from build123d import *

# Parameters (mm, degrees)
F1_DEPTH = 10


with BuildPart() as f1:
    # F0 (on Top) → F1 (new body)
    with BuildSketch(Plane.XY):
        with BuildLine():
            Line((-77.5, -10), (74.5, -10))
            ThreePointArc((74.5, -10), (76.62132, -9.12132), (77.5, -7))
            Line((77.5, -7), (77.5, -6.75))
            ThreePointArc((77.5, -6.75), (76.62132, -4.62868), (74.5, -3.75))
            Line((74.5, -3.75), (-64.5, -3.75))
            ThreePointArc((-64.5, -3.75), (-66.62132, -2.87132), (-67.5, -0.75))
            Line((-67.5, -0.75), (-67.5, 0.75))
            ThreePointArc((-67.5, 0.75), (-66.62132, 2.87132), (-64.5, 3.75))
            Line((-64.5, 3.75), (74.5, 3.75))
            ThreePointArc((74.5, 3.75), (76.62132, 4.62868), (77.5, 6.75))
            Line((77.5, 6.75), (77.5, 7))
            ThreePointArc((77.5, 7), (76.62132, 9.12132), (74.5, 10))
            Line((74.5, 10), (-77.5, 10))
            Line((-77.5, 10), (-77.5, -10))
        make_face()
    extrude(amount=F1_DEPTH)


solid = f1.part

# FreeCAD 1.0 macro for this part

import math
import FreeCAD as App
import Part
import Sketcher
from FreeCAD import Vector

doc = App.newDocument("Part")
body = doc.addObject("PartDesign::Body", "Body")

sketch1 = body.newObject("Sketcher::SketchObject", "Sketch")
sketch1.AttachmentSupport = (doc.getObject("XY_Plane"), [""])
sketch1.MapMode = "FlatFace"
sketch1.addGeometry([
    Part.LineSegment(Vector(-77.5, -10, 0), Vector(74.5, -10, 0)),
    Part.ArcOfCircle(Part.Circle(Vector(74.5, -7, 0), Vector(0, 0, 1), 3), math.radians(-90), math.radians(0)),
    Part.LineSegment(Vector(77.5, -7, 0), Vector(77.5, -6.75, 0)),
    Part.ArcOfCircle(Part.Circle(Vector(74.5, -6.75, 0), Vector(0, 0, 1), 3), math.radians(0), math.radians(90)),
    Part.LineSegment(Vector(74.5, -3.75, 0), Vector(-64.5, -3.75, 0)),
    Part.ArcOfCircle(Part.Circle(Vector(-64.5, -0.75, 0), Vector(0, 0, 1), 3), math.radians(-180), math.radians(-90)),
    Part.LineSegment(Vector(-67.5, -0.75, 0), Vector(-67.5, 0.75, 0)),
    Part.ArcOfCircle(Part.Circle(Vector(-64.5, 0.75, 0), Vector(0, 0, 1), 3), math.radians(90), math.radians(180)),
    Part.LineSegment(Vector(-64.5, 3.75, 0), Vector(74.5, 3.75, 0)),
    Part.ArcOfCircle(Part.Circle(Vector(74.5, 6.75, 0), Vector(0, 0, 1), 3), math.radians(-90), math.radians(0)),
    Part.LineSegment(Vector(77.5, 6.75, 0), Vector(77.5, 7, 0)),
    Part.ArcOfCircle(Part.Circle(Vector(74.5, 7, 0), Vector(0, 0, 1), 3), math.radians(0), math.radians(90)),
    Part.LineSegment(Vector(74.5, 10, 0), Vector(-77.5, 10, 0)),
    Part.LineSegment(Vector(-77.5, 10, 0), Vector(-77.5, -10, 0)),
], False)
sketch1.addConstraint([
    Sketcher.Constraint("Tangent", 0, 2, 1, 1),
    Sketcher.Constraint("Tangent", 1, 2, 2, 1),
    Sketcher.Constraint("Tangent", 2, 2, 3, 1),
    Sketcher.Constraint("Tangent", 3, 2, 4, 1),
    Sketcher.Constraint("Tangent", 4, 2, 5, 2),
    Sketcher.Constraint("Tangent", 5, 1, 6, 1),
    Sketcher.Constraint("Tangent", 6, 2, 7, 2),
    Sketcher.Constraint("Tangent", 7, 1, 8, 1),
    Sketcher.Constraint("Tangent", 8, 2, 9, 1),
    Sketcher.Constraint("Tangent", 9, 2, 10, 1),
    Sketcher.Constraint("Tangent", 10, 2, 11, 1),
    Sketcher.Constraint("Tangent", 11, 2, 12, 1),
    Sketcher.Constraint("Coincident", 12, 2, 13, 1),
    Sketcher.Constraint("Coincident", 13, 2, 0, 1),
    Sketcher.Constraint("Horizontal", 0),
    Sketcher.Constraint("Vertical", 2),
    Sketcher.Constraint("Horizontal", 4),
    Sketcher.Constraint("Vertical", 6),
    Sketcher.Constraint("Horizontal", 8),
    Sketcher.Constraint("Vertical", 10),
    Sketcher.Constraint("Horizontal", 12),
    Sketcher.Constraint("Vertical", 13),
    Sketcher.Constraint("Equal", 1, 3),
    Sketcher.Constraint("Equal", 3, 5),
    Sketcher.Constraint("Equal", 5, 7),
    Sketcher.Constraint("Equal", 7, 9),
    Sketcher.Constraint("Equal", 9, 11),
    Sketcher.Constraint("Symmetric", 3, 3, 9, 3, -1),
    Sketcher.Constraint("Equal", 2, 10),
    Sketcher.Constraint("Radius", 1, 3.000001),
    Sketcher.Constraint("DistanceX", 0, 1, 0, 2, 152.0),
    Sketcher.Constraint("DistanceX", 4, 2, 4, 1, 139.0),
    Sketcher.Constraint("DistanceY", 13, 2, 13, 1, 20.0),
    Sketcher.Constraint("DistanceY", 6, 1, 6, 2, 1.5),
    Sketcher.Constraint("DistanceX", -1, 1, 1, 3, 74.499999),
])
pad1 = body.newObject("PartDesign::Pad", "Pad")
pad1.Profile = sketch1
pad1.Length = 10

doc.recompute()
